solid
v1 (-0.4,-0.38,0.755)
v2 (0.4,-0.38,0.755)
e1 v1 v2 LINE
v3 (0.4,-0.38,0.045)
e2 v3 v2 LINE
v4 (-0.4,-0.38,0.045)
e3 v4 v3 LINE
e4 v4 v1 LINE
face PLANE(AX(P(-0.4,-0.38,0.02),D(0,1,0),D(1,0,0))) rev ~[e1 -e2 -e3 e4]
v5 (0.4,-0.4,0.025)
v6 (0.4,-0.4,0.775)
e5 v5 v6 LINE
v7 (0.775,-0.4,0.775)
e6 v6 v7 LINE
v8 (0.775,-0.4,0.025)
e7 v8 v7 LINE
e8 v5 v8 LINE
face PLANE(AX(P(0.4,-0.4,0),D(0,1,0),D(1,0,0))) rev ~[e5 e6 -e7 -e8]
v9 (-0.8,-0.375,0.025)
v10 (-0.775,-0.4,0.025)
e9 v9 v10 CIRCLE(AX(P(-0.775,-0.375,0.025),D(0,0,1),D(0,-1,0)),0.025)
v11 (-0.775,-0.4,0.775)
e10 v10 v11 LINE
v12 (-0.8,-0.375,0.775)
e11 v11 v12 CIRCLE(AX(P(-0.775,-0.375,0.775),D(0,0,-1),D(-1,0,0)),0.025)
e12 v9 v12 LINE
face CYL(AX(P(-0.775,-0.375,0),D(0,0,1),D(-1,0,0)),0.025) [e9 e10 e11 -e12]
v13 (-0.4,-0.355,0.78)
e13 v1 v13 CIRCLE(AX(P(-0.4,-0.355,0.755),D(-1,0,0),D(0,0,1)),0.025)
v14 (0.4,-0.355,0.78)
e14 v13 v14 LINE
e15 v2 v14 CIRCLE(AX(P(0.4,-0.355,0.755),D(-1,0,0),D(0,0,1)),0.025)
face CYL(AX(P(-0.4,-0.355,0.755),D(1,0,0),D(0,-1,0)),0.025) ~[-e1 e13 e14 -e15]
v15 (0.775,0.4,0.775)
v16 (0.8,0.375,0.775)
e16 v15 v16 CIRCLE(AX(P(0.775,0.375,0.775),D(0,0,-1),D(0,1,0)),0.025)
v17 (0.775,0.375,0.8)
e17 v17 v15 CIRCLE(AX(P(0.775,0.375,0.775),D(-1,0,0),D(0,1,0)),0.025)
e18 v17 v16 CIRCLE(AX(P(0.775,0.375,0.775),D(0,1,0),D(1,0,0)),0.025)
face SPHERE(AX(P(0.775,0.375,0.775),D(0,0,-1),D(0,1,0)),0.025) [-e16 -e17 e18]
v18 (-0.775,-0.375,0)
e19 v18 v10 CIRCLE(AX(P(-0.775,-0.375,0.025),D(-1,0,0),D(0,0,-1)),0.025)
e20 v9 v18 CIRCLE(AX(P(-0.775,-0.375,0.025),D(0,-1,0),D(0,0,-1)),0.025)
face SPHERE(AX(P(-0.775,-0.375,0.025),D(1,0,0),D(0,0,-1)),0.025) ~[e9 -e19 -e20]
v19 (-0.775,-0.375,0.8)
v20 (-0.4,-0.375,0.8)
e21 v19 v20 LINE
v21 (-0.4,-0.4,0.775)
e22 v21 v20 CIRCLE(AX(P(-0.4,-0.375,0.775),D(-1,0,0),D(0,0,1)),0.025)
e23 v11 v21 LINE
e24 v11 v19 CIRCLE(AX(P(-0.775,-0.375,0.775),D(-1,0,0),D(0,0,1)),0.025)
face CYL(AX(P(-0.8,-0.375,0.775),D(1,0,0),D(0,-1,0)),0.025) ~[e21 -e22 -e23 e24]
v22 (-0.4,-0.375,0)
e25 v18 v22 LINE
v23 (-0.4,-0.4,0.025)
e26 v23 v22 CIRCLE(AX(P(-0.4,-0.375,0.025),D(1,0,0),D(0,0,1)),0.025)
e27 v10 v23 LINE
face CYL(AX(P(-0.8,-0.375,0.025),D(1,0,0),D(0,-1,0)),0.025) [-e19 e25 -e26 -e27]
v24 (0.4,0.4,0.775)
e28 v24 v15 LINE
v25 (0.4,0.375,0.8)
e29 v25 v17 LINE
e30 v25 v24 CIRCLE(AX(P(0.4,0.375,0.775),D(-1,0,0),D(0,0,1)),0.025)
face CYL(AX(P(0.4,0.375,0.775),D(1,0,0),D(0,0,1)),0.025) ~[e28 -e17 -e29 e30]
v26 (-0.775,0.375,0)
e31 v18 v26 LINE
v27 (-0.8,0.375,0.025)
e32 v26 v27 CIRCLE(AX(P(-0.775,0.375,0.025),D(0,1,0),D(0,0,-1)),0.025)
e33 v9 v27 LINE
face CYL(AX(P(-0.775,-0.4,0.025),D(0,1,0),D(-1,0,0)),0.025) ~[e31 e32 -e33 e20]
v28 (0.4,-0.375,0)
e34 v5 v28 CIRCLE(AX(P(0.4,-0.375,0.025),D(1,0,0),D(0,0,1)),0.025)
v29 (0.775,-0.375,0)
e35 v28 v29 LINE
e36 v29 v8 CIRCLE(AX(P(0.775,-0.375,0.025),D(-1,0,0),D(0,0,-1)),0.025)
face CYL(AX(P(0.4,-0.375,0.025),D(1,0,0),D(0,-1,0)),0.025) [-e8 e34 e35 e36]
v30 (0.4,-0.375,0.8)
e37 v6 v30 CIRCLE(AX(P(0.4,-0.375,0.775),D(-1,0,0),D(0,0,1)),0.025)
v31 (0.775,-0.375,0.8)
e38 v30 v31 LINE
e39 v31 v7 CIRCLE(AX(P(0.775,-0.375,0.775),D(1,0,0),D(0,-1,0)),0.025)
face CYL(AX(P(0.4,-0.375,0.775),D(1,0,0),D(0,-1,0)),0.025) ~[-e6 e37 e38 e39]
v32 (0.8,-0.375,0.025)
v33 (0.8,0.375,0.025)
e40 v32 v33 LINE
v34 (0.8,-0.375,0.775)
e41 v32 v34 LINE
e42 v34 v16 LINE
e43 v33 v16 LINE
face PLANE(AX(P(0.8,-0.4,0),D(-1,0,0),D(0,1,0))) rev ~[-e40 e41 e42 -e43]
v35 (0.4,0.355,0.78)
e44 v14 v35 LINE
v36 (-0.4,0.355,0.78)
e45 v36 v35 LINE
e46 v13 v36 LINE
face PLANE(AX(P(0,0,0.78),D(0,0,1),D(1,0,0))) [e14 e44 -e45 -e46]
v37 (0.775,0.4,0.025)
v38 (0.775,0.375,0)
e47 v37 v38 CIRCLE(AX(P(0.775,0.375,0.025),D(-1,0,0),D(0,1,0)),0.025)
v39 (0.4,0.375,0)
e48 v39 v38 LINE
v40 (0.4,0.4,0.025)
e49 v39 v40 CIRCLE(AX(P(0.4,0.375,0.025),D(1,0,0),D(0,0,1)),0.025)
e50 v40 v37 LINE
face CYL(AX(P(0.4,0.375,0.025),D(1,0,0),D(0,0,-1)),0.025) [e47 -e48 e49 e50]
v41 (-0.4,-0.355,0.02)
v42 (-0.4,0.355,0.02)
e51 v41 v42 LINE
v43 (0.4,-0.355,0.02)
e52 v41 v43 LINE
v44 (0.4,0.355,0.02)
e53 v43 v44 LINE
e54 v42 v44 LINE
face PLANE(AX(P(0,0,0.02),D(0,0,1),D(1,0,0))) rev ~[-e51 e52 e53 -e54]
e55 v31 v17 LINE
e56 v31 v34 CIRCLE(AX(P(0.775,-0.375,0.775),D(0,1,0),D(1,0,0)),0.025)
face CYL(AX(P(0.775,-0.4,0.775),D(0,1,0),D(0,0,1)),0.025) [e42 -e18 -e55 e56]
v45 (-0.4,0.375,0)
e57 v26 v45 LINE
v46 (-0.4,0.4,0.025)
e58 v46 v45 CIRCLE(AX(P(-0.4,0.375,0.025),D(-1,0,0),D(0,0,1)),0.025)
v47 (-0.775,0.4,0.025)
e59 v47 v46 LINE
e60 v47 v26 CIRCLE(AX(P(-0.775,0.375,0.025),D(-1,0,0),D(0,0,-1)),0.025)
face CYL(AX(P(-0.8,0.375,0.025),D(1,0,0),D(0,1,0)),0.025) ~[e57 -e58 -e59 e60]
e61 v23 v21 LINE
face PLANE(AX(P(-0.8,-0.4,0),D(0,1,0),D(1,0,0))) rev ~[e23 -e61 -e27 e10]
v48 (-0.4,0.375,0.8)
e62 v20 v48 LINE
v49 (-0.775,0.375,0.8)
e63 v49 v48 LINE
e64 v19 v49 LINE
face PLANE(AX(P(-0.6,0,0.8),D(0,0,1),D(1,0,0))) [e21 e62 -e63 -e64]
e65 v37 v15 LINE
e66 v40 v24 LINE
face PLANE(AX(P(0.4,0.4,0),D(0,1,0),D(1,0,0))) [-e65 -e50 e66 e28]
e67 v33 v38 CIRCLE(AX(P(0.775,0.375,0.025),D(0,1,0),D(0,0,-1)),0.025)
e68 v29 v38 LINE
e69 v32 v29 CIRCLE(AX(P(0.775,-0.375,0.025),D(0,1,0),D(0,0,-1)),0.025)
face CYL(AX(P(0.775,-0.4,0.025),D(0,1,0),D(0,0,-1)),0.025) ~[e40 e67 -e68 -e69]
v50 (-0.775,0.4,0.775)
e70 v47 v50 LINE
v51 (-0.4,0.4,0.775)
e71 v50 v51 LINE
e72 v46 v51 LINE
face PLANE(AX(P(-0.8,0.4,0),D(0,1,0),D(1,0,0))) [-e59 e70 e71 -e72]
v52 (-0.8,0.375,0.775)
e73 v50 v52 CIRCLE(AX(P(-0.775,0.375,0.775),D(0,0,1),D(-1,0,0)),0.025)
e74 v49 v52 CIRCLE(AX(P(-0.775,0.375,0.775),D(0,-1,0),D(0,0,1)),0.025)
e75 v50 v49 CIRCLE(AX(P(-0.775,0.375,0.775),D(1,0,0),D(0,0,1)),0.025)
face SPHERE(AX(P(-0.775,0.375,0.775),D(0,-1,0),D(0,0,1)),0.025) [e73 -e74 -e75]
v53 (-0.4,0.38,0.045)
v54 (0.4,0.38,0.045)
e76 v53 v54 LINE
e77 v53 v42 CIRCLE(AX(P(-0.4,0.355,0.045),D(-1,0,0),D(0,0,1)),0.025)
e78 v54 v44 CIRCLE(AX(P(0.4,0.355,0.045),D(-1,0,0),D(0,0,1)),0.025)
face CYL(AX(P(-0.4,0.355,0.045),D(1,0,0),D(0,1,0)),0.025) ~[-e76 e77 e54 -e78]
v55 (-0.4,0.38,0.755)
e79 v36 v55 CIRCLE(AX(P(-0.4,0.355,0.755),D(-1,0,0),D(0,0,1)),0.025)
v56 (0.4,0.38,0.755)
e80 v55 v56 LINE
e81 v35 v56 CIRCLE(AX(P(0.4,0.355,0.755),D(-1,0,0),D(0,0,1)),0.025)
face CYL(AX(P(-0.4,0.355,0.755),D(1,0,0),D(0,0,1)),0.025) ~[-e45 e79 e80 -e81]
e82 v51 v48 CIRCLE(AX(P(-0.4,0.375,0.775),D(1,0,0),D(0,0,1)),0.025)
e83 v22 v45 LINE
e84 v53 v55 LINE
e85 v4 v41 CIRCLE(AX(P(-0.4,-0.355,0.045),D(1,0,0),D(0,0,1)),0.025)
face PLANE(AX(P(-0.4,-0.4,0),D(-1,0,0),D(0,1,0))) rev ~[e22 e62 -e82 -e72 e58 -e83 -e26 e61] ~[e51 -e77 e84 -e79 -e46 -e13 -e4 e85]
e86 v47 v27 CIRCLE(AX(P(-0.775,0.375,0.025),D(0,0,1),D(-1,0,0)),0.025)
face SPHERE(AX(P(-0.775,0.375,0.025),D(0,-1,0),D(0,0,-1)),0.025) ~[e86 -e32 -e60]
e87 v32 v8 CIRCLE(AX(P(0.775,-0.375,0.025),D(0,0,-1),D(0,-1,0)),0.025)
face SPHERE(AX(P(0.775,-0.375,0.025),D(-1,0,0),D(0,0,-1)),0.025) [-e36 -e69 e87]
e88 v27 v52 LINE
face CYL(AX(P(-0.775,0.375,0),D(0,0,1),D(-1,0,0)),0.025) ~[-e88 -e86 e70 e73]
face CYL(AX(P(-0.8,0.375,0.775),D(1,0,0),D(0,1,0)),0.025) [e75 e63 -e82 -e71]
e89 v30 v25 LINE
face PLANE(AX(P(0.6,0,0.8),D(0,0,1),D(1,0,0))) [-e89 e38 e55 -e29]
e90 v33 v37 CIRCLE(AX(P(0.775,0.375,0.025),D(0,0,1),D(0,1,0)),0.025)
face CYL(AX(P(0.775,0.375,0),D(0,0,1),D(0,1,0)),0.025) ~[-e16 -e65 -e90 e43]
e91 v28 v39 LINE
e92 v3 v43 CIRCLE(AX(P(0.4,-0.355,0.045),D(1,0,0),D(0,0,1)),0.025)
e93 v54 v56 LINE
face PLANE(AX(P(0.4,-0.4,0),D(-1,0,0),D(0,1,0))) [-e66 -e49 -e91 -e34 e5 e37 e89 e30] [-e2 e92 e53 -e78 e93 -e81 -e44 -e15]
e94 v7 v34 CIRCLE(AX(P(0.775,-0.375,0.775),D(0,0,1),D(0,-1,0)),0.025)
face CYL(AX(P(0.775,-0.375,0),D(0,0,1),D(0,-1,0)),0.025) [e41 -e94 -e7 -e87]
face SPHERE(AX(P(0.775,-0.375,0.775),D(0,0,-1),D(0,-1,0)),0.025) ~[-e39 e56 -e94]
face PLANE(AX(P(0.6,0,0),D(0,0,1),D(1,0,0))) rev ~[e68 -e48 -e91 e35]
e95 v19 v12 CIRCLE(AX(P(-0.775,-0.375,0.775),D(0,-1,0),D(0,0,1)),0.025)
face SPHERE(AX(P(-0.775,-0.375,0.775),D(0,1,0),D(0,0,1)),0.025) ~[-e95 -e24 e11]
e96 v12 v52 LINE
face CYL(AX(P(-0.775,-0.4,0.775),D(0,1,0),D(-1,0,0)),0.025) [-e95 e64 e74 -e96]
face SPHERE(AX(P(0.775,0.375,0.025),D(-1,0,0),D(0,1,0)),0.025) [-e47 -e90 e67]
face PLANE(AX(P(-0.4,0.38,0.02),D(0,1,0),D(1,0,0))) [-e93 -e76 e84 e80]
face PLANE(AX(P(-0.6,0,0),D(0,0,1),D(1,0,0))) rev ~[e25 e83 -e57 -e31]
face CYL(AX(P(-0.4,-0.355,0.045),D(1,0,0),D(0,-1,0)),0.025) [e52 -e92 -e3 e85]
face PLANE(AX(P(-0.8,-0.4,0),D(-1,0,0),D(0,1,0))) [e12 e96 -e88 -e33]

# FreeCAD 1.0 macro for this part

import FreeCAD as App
import Part
import Sketcher
Q = App.Units.Quantity


def edges_at(feature, points):
    """Names of the edges that pass closest to the given points."""
    edges = feature.Shape.Edges
    near = lambda p: min(range(len(edges)), key=lambda i: edges[i].distToShape(Part.Vertex(*p))[0])
    return sorted({f"Edge{near(p) + 1}" for p in points})

doc = App.newDocument("Part")
params = doc.addObject("Spreadsheet::Sheet", "Params")
for row, (alias, value) in enumerate([
    ("sketch1_width", "0.4 mm"),
    ("sketch1_height", "0.8 mm"),
    ("pad1_length", "0.8 mm"),
    ("sketch2_width", "0.4 mm"),
    ("sketch2_height", "0.8 mm"),
    ("pad2_length", "0.8 mm"),
    ("sketch3_width", "0.8 mm"),
    ("sketch3_height", "0.76 mm"),
    ("pad3_length", "0.76 mm"),
    ("fillet_radius", "0.025 mm"),
    ("fillet2_radius", "0.025 mm"),
], start=1):
    params.set(f"A{row}", alias)
    params.set(f"B{row}", "=" + value)
    params.setAlias(f"B{row}", alias)

body = doc.addObject("PartDesign::Body", "Body")

# Sketch on XY plane
sketch1 = body.newObject("Sketcher::SketchObject", "Sketch")
sketch1.AttachmentSupport = (doc.getObject("XY_Plane"), [""])
sketch1.MapMode = "FlatFace"
sketch1.addGeometry([
    Part.LineSegment(App.Vector(0.4, 0.4, 0), App.Vector(0.4, -0.4, 0)),
    Part.LineSegment(App.Vector(0.4, -0.4, 0), App.Vector(0.8, -0.4, 0)),
    Part.LineSegment(App.Vector(0.8, -0.4, 0), App.Vector(0.8, 0.4, 0)),
    Part.LineSegment(App.Vector(0.8, 0.4, 0), App.Vector(0.4, 0.4, 0)),
], False)
sketch1.addConstraint([
    Sketcher.Constraint("Coincident", 0, 2, 1, 1),
    Sketcher.Constraint("Coincident", 1, 2, 2, 1),
    Sketcher.Constraint("Coincident", 2, 2, 3, 1),
    Sketcher.Constraint("Coincident", 3, 2, 0, 1),
    Sketcher.Constraint("Vertical", 0),
    Sketcher.Constraint("Horizontal", 1),
    Sketcher.Constraint("Vertical", 2),
    Sketcher.Constraint("Horizontal", 3),
    Sketcher.Constraint("DistanceX", 1, 1, 1, 2, Q("0.4 mm")),
    Sketcher.Constraint("DistanceY", 0, 2, 0, 1, Q("0.8 mm")),
    Sketcher.Constraint("DistanceX", -1, 1, 0, 2, Q("0.4 mm")),
    Sketcher.Constraint("DistanceY", 0, 2, -1, 1, Q("0.4 mm")),
])
sketch1.setExpression("Constraints[8]", "Params.sketch1_width")
sketch1.setExpression("Constraints[9]", "Params.sketch1_height")
pad1 = body.newObject("PartDesign::Pad", "Pad")
pad1.Profile = sketch1
pad1.setExpression("Length", "Params.pad1_length")
body2 = doc.addObject("PartDesign::Body", "Body001")

# Sketch on XY plane
sketch2 = body2.newObject("Sketcher::SketchObject", "Sketch001")
sketch2.AttachmentSupport = (doc.getObject("XY_Plane001"), [""])
sketch2.MapMode = "FlatFace"
sketch2.addGeometry([
    Part.LineSegment(App.Vector(-0.8, 0.4, 0), App.Vector(-0.8, -0.4, 0)),
    Part.LineSegment(App.Vector(-0.8, -0.4, 0), App.Vector(-0.4, -0.4, 0)),
    Part.LineSegment(App.Vector(-0.4, -0.4, 0), App.Vector(-0.4, 0.4, 0)),
    Part.LineSegment(App.Vector(-0.4, 0.4, 0), App.Vector(-0.8, 0.4, 0)),
], False)
sketch2.addConstraint([
    Sketcher.Constraint("Coincident", 0, 2, 1, 1),
    Sketcher.Constraint("Coincident", 1, 2, 2, 1),
    Sketcher.Constraint("Coincident", 2, 2, 3, 1),
    Sketcher.Constraint("Coincident", 3, 2, 0, 1),
    Sketcher.Constraint("Vertical", 0),
    Sketcher.Constraint("Horizontal", 1),
    Sketcher.Constraint("Vertical", 2),
    Sketcher.Constraint("Horizontal", 3),
    Sketcher.Constraint("DistanceX", 1, 1, 1, 2, Q("0.4 mm")),
    Sketcher.Constraint("DistanceY", 0, 2, 0, 1, Q("0.8 mm")),
    Sketcher.Constraint("DistanceX", 0, 2, -1, 1, Q("0.8 mm")),
    Sketcher.Constraint("DistanceY", 0, 2, -1, 1, Q("0.4 mm")),
])
sketch2.setExpression("Constraints[8]", "Params.sketch2_width")
sketch2.setExpression("Constraints[9]", "Params.sketch2_height")
pad2 = body2.newObject("PartDesign::Pad", "Pad001")
pad2.Profile = sketch2
pad2.setExpression("Length", "Params.pad2_length")
body.AllowCompound = True
doc.recompute()

boolean = body.newObject("PartDesign::Boolean", "Boolean")
boolean.Type = "Fuse"
boolean.addObjects([body2])

# Sketch on XY plane
sketch3 = body.newObject("Sketcher::SketchObject", "Sketch002")
sketch3.AttachmentSupport = (doc.getObject("XY_Plane"), [""])
sketch3.MapMode = "FlatFace"
sketch3.AttachmentOffset = App.Placement(App.Vector(0, 0, 0.02), App.Rotation())
sketch3.addGeometry([
    Part.LineSegment(App.Vector(-0.4, 0.38, 0), App.Vector(-0.4, -0.38, 0)),
    Part.LineSegment(App.Vector(-0.4, -0.38, 0), App.Vector(0.4, -0.38, 0)),
    Part.LineSegment(App.Vector(0.4, -0.38, 0), App.Vector(0.4, 0.38, 0)),
    Part.LineSegment(App.Vector(0.4, 0.38, 0), App.Vector(-0.4, 0.38, 0)),
], False)
sketch3.addConstraint([
    Sketcher.Constraint("Coincident", 0, 2, 1, 1),
    Sketcher.Constraint("Coincident", 1, 2, 2, 1),
    Sketcher.Constraint("Coincident", 2, 2, 3, 1),
    Sketcher.Constraint("Coincident", 3, 2, 0, 1),
    Sketcher.Constraint("Vertical", 0),
    Sketcher.Constraint("Horizontal", 1),
    Sketcher.Constraint("Vertical", 2),
    Sketcher.Constraint("Horizontal", 3),
    Sketcher.Constraint("Symmetric", 0, 2, 2, 2, -1, 1),
    Sketcher.Constraint("DistanceX", 1, 1, 1, 2, Q("0.8 mm")),
    Sketcher.Constraint("DistanceY", 0, 2, 0, 1, Q("0.76 mm")),
])
sketch3.setExpression("Constraints[9]", "Params.sketch3_width")
sketch3.setExpression("Constraints[10]", "Params.sketch3_height")
pad3 = body.newObject("PartDesign::Pad", "Pad002")
pad3.Profile = sketch3
pad3.setExpression("Length", "Params.pad3_length")
doc.recompute()

fillet = body.newObject("PartDesign::Fillet", "Fillet")
fillet.Base = (pad3, edges_at(pad3, [
    (-0.8, 0, 0.8),
    (-0.6, -0.4, 0.8),
    (0.6, 0.4, 0),
    (0.8, 0.4, 0.4),
    (0.6, -0.4, 0),
    (0.8, 0, 0),
    (0.8, -0.4, 0.4),
    (0.6, 0.4, 0.8),
    (0.6, -0.4, 0.8),
    (0.8, 0, 0.8),
    (-0.6, -0.4, 0),
    (-0.8, 0, 0),
    (-0.6, 0.4, 0),
    (-0.6, 0.4, 0.8),
    (-0.8, -0.4, 0.4),
    (-0.8, 0.4, 0.4),
]))
fillet.setExpression("Radius", "Params.fillet_radius")
doc.recompute()

fillet2 = body.newObject("PartDesign::Fillet", "Fillet001")
fillet2.Base = (fillet, edges_at(fillet, [
    (0, -0.38, 0.02),
    (0, 0.38, 0.02),
    (0, 0.38, 0.78),
    (0, -0.38, 0.78),
]))
fillet2.setExpression("Radius", "Params.fillet2_radius")

doc.recompute()
